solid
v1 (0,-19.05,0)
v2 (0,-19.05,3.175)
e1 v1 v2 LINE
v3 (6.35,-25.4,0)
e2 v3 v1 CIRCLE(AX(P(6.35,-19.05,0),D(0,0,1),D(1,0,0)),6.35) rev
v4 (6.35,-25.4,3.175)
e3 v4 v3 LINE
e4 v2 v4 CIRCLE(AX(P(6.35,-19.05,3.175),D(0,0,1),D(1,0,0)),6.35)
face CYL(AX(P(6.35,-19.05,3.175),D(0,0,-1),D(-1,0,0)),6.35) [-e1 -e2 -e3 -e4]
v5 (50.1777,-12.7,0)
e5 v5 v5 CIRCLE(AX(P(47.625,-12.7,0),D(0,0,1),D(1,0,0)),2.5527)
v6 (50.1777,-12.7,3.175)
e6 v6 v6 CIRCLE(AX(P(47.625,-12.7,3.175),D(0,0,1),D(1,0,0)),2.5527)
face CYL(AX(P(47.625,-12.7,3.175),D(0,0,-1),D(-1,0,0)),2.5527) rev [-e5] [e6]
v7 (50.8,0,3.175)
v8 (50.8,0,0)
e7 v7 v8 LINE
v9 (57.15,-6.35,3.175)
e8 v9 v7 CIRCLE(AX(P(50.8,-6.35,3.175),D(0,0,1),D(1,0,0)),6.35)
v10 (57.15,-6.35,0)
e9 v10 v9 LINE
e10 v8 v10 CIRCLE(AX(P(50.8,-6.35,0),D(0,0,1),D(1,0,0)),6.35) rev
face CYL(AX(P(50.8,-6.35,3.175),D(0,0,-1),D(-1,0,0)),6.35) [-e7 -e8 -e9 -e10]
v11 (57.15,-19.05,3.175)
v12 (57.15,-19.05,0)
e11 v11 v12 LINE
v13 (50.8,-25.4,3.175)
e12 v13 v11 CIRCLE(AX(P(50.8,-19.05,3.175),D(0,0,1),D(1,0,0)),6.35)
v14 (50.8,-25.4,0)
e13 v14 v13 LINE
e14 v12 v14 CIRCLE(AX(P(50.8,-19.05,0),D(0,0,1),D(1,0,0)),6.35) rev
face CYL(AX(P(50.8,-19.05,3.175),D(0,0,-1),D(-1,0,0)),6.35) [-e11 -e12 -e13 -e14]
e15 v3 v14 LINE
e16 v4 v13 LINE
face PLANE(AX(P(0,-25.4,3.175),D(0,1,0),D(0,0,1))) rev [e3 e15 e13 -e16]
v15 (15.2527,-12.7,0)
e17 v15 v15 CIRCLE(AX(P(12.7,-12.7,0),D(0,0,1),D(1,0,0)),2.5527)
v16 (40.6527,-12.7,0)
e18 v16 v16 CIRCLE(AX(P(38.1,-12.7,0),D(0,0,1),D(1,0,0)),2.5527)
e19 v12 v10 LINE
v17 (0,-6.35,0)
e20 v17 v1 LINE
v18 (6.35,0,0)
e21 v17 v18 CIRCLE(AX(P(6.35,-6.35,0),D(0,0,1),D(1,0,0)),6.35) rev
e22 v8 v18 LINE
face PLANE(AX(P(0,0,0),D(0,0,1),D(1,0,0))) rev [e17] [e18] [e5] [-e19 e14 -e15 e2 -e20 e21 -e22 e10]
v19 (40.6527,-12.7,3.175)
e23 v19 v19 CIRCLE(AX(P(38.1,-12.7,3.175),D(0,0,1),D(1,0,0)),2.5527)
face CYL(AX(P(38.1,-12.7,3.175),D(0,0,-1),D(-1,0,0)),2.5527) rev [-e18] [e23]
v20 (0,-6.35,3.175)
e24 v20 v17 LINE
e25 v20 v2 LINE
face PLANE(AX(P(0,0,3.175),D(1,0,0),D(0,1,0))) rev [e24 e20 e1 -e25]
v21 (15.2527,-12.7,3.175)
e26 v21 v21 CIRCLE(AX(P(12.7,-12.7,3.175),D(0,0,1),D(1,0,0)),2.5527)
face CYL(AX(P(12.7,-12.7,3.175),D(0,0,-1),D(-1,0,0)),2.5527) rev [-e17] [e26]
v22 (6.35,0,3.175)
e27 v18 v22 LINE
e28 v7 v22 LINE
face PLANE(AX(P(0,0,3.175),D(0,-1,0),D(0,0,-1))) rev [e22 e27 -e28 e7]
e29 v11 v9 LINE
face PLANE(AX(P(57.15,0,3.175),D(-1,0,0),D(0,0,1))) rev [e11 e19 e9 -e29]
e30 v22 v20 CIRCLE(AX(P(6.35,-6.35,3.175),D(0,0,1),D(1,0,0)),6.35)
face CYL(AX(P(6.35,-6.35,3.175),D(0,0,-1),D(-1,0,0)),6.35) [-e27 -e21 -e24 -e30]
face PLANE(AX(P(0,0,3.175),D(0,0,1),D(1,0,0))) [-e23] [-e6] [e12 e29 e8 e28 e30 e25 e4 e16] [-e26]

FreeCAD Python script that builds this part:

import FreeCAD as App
import Part
import Sketcher
Q = App.Units.Quantity


def edges_at(feature, points):
    """Names of the edges that pass closest to the given points."""
    edges = feature.Shape.Edges
    near = lambda p: min(range(len(edges)), key=lambda i: edges[i].distToShape(Part.Vertex(*p))[0])
    return sorted({f"Edge{near(p) + 1}" for p in points})

doc = App.newDocument("Part")
body = doc.addObject("PartDesign::Body", "Body")

# Sketch on XY plane
sketch1 = doc.addObject("Sketcher::SketchObject", "Sketch")
body.addObject(sketch1)
sketch1.AttachmentSupport = (doc.XY_Plane, [""])
sketch1.MapMode = "FlatFace"
sketch1.addGeometry(Part.LineSegment(App.Vector(0, 0, 0), App.Vector(0, -25.4, 0)), False)
sketch1.addGeometry(Part.LineSegment(App.Vector(0, -25.4, 0), App.Vector(57.1, -25.4, 0)), False)
sketch1.addGeometry(Part.LineSegment(App.Vector(57.1, -25.4, 0), App.Vector(57.1, 0, 0)), False)
sketch1.addGeometry(Part.LineSegment(App.Vector(57.1, 0, 0), App.Vector(0, 0, 0)), False)
sketch1.addGeometry(Part.Circle(App.Vector(12.7, -12.7, 0), App.Vector(0, 0, 1), 2.6), False)
sketch1.addGeometry(Part.Circle(App.Vector(38.1, -12.7, 0), App.Vector(0, 0, 1), 2.6), False)
sketch1.addGeometry(Part.Circle(App.Vector(47.6, -12.7, 0), App.Vector(0, 0, 1), 2.6), False)
sketch1.addConstraint(Sketcher.Constraint("Coincident", 0, 2, 1, 1))
sketch1.addConstraint(Sketcher.Constraint("Coincident", 1, 2, 2, 1))
sketch1.addConstraint(Sketcher.Constraint("Coincident", 2, 2, 3, 1))
sketch1.addConstraint(Sketcher.Constraint("Coincident", 3, 2, 0, 1))
sketch1.addConstraint(Sketcher.Constraint("Vertical", 0))
sketch1.addConstraint(Sketcher.Constraint("Horizontal", 1))
sketch1.addConstraint(Sketcher.Constraint("Vertical", 2))
sketch1.addConstraint(Sketcher.Constraint("Horizontal", 3))
sketch1.addConstraint(Sketcher.Constraint("Coincident", 3, 2, -1, 1))
sketch1.addConstraint(Sketcher.Constraint("Equal", 4, 5))
sketch1.addConstraint(Sketcher.Constraint("Equal", 5, 6))
sketch1.addConstraint(Sketcher.Constraint("Horizontal", 4, 3, 5, 3))
sketch1.addConstraint(Sketcher.Constraint("Horizontal", 5, 3, 6, 3))
sketch1.addConstraint(Sketcher.Constraint("DistanceY", 0, 2, 0, 1, Q("1 in")))
sketch1.addConstraint(Sketcher.Constraint("Diameter", 4, Q("0.201 in")))
sketch1.addConstraint(Sketcher.Constraint("DistanceX", 4, 3, 5, 3, Q("1 in")))
sketch1.addConstraint(Sketcher.Constraint("DistanceX", 1, 1, 1, 2, Q("2.25 in")))
sketch1.addConstraint(Sketcher.Constraint("DistanceX", -1, 1, 4, 3, Q("0.5 in")))
sketch1.addConstraint(Sketcher.Constraint("DistanceY", 4, 3, -1, 1, Q("0.5 in")))
sketch1.addConstraint(Sketcher.Constraint("DistanceX", -1, 1, 6, 3, Q("1.875 in")))
pad1 = doc.addObject("PartDesign::Pad", "Pad")
body.addObject(pad1)
pad1.Profile = sketch1
pad1.Length = Q("0.125 in")
doc.recompute()

fillet = doc.addObject("PartDesign::Fillet", "Fillet")
body.addObject(fillet)
fillet.Base = (pad1, edges_at(pad1, [
    (0, 0, 1.587),
    (57.15, 0, 1.587),
    (57.15, -25.4, 1.587),
    (0, -25.4, 1.587),
]))
fillet.Radius = Q("0.25 in")

doc.recompute()
